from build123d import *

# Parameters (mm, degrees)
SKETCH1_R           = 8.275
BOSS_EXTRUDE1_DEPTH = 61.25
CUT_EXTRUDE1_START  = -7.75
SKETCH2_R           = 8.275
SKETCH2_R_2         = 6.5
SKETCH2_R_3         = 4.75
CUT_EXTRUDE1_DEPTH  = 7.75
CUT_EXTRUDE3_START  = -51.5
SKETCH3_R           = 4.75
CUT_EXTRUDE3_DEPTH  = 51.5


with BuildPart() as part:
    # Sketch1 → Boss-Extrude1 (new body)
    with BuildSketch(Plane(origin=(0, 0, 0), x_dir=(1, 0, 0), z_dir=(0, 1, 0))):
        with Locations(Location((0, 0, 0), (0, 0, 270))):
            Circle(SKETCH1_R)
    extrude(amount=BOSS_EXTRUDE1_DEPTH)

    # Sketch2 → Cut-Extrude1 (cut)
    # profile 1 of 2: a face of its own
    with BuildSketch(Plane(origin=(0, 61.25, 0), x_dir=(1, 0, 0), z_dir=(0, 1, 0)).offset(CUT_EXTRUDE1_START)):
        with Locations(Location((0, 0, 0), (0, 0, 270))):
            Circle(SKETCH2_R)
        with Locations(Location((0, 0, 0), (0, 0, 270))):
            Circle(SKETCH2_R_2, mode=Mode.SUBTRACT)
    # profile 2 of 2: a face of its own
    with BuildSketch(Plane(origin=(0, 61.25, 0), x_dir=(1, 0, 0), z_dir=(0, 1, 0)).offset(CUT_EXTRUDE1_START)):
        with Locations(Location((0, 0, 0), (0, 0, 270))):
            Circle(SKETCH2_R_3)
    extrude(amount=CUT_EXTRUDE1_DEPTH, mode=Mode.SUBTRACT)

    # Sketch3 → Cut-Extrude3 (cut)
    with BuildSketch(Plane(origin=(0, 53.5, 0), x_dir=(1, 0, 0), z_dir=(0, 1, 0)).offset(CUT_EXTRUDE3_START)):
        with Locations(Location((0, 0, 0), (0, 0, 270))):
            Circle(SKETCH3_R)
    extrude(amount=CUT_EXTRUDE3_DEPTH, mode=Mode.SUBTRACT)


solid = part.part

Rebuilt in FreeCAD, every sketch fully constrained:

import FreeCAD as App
import Part
import Sketcher

V = App.Vector

doc = App.newDocument("Part")
params = doc.addObject("Spreadsheet::Sheet", "Params")
for row, (alias, value) in enumerate([
    ("sketch1_diameter", "16.55 mm"),
    ("pad1_length", "61.25 mm"),
    ("sketch2_diameter", "13 mm"),
    ("sketch2_diameter2", "9.5 mm"),
    ("sketch2_diameter3", "16.55 mm"),
    ("pocket1_length", "7.75 mm"),
    ("sketch3_diameter", "9.5 mm"),
    ("pocket2_length", "51.5 mm"),
], start=1):
    params.set(f"A{row}", alias)
    params.set(f"B{row}", "=" + value)
    params.setAlias(f"B{row}", alias)

body = doc.addObject("PartDesign::Body", "Body")

# Sketch on XZ plane
sketch1 = doc.addObject("Sketcher::SketchObject", "Sketch")
body.addObject(sketch1)
sketch1.AttachmentSupport = (doc.XZ_Plane, [""])
sketch1.MapMode = "FlatFace"
sketch1.addGeometry(Part.Circle(V(0, 0, 0), V(0, 0, 1), 8), False)
sketch1.addConstraint(Sketcher.Constraint("Coincident", 0, 3, -1, 1))
sketch1.addConstraint(Sketcher.Constraint("Diameter", 0, 16.55))
sketch1.setExpression("Constraints[1]", "Params.sketch1_diameter")
pad1 = doc.addObject("PartDesign::Pad", "Pad")
body.addObject(pad1)
pad1.Profile = sketch1
pad1.setExpression("Length", "Params.pad1_length")
pad1.Reversed = True

# Sketch on XZ plane
sketch2 = doc.addObject("Sketcher::SketchObject", "Sketch001")
body.addObject(sketch2)
sketch2.AttachmentSupport = (doc.XZ_Plane, [""])
sketch2.MapMode = "FlatFace"
sketch2.AttachmentOffset = App.Placement(V(0, 0, -53.5), App.Rotation())
sketch2.addGeometry(Part.Circle(V(0, 0, 0), V(0, 0, 1), 8.3), False)
sketch2.addGeometry(Part.Circle(V(0, 0, 0), V(0, 0, 1), 6.5), False)
sketch2.addGeometry(Part.Circle(V(0, 0, 0), V(0, 0, 1), 4.8), False)
sketch2.addConstraint(Sketcher.Constraint("Coincident", 0, 3, -1, 1))
sketch2.addConstraint(Sketcher.Constraint("Coincident", 1, 3, -1, 1))
sketch2.addConstraint(Sketcher.Constraint("Coincident", 2, 3, -1, 1))
sketch2.addConstraint(Sketcher.Constraint("Diameter", 1, 13.0))
sketch2.addConstraint(Sketcher.Constraint("Diameter", 2, 9.5))
sketch2.addConstraint(Sketcher.Constraint("Diameter", 0, 16.55))
sketch2.setExpression("Constraints[3]", "Params.sketch2_diameter")
sketch2.setExpression("Constraints[4]", "Params.sketch2_diameter2")
sketch2.setExpression("Constraints[5]", "Params.sketch2_diameter3")
pocket1 = doc.addObject("PartDesign::Pocket", "Pocket")
body.addObject(pocket1)
pocket1.Profile = sketch2
pocket1.setExpression("Length", "Params.pocket1_length")

# Sketch on XZ plane
sketch3 = doc.addObject("Sketcher::SketchObject", "Sketch002")
body.addObject(sketch3)
sketch3.AttachmentSupport = (doc.XZ_Plane, [""])
sketch3.MapMode = "FlatFace"
sketch3.AttachmentOffset = App.Placement(V(0, 0, -2), App.Rotation())
sketch3.addGeometry(Part.Circle(V(0, 0, 0), V(0, 0, 1), 4.8), False)
sketch3.addConstraint(Sketcher.Constraint("Coincident", 0, 3, -1, 1))
sketch3.addConstraint(Sketcher.Constraint("Diameter", 0, 9.5))
sketch3.setExpression("Constraints[1]", "Params.sketch3_diameter")
pocket2 = doc.addObject("PartDesign::Pocket", "Pocket001")
body.addObject(pocket2)
pocket2.Profile = sketch3
pocket2.setExpression("Length", "Params.pocket2_length")

doc.recompute()
